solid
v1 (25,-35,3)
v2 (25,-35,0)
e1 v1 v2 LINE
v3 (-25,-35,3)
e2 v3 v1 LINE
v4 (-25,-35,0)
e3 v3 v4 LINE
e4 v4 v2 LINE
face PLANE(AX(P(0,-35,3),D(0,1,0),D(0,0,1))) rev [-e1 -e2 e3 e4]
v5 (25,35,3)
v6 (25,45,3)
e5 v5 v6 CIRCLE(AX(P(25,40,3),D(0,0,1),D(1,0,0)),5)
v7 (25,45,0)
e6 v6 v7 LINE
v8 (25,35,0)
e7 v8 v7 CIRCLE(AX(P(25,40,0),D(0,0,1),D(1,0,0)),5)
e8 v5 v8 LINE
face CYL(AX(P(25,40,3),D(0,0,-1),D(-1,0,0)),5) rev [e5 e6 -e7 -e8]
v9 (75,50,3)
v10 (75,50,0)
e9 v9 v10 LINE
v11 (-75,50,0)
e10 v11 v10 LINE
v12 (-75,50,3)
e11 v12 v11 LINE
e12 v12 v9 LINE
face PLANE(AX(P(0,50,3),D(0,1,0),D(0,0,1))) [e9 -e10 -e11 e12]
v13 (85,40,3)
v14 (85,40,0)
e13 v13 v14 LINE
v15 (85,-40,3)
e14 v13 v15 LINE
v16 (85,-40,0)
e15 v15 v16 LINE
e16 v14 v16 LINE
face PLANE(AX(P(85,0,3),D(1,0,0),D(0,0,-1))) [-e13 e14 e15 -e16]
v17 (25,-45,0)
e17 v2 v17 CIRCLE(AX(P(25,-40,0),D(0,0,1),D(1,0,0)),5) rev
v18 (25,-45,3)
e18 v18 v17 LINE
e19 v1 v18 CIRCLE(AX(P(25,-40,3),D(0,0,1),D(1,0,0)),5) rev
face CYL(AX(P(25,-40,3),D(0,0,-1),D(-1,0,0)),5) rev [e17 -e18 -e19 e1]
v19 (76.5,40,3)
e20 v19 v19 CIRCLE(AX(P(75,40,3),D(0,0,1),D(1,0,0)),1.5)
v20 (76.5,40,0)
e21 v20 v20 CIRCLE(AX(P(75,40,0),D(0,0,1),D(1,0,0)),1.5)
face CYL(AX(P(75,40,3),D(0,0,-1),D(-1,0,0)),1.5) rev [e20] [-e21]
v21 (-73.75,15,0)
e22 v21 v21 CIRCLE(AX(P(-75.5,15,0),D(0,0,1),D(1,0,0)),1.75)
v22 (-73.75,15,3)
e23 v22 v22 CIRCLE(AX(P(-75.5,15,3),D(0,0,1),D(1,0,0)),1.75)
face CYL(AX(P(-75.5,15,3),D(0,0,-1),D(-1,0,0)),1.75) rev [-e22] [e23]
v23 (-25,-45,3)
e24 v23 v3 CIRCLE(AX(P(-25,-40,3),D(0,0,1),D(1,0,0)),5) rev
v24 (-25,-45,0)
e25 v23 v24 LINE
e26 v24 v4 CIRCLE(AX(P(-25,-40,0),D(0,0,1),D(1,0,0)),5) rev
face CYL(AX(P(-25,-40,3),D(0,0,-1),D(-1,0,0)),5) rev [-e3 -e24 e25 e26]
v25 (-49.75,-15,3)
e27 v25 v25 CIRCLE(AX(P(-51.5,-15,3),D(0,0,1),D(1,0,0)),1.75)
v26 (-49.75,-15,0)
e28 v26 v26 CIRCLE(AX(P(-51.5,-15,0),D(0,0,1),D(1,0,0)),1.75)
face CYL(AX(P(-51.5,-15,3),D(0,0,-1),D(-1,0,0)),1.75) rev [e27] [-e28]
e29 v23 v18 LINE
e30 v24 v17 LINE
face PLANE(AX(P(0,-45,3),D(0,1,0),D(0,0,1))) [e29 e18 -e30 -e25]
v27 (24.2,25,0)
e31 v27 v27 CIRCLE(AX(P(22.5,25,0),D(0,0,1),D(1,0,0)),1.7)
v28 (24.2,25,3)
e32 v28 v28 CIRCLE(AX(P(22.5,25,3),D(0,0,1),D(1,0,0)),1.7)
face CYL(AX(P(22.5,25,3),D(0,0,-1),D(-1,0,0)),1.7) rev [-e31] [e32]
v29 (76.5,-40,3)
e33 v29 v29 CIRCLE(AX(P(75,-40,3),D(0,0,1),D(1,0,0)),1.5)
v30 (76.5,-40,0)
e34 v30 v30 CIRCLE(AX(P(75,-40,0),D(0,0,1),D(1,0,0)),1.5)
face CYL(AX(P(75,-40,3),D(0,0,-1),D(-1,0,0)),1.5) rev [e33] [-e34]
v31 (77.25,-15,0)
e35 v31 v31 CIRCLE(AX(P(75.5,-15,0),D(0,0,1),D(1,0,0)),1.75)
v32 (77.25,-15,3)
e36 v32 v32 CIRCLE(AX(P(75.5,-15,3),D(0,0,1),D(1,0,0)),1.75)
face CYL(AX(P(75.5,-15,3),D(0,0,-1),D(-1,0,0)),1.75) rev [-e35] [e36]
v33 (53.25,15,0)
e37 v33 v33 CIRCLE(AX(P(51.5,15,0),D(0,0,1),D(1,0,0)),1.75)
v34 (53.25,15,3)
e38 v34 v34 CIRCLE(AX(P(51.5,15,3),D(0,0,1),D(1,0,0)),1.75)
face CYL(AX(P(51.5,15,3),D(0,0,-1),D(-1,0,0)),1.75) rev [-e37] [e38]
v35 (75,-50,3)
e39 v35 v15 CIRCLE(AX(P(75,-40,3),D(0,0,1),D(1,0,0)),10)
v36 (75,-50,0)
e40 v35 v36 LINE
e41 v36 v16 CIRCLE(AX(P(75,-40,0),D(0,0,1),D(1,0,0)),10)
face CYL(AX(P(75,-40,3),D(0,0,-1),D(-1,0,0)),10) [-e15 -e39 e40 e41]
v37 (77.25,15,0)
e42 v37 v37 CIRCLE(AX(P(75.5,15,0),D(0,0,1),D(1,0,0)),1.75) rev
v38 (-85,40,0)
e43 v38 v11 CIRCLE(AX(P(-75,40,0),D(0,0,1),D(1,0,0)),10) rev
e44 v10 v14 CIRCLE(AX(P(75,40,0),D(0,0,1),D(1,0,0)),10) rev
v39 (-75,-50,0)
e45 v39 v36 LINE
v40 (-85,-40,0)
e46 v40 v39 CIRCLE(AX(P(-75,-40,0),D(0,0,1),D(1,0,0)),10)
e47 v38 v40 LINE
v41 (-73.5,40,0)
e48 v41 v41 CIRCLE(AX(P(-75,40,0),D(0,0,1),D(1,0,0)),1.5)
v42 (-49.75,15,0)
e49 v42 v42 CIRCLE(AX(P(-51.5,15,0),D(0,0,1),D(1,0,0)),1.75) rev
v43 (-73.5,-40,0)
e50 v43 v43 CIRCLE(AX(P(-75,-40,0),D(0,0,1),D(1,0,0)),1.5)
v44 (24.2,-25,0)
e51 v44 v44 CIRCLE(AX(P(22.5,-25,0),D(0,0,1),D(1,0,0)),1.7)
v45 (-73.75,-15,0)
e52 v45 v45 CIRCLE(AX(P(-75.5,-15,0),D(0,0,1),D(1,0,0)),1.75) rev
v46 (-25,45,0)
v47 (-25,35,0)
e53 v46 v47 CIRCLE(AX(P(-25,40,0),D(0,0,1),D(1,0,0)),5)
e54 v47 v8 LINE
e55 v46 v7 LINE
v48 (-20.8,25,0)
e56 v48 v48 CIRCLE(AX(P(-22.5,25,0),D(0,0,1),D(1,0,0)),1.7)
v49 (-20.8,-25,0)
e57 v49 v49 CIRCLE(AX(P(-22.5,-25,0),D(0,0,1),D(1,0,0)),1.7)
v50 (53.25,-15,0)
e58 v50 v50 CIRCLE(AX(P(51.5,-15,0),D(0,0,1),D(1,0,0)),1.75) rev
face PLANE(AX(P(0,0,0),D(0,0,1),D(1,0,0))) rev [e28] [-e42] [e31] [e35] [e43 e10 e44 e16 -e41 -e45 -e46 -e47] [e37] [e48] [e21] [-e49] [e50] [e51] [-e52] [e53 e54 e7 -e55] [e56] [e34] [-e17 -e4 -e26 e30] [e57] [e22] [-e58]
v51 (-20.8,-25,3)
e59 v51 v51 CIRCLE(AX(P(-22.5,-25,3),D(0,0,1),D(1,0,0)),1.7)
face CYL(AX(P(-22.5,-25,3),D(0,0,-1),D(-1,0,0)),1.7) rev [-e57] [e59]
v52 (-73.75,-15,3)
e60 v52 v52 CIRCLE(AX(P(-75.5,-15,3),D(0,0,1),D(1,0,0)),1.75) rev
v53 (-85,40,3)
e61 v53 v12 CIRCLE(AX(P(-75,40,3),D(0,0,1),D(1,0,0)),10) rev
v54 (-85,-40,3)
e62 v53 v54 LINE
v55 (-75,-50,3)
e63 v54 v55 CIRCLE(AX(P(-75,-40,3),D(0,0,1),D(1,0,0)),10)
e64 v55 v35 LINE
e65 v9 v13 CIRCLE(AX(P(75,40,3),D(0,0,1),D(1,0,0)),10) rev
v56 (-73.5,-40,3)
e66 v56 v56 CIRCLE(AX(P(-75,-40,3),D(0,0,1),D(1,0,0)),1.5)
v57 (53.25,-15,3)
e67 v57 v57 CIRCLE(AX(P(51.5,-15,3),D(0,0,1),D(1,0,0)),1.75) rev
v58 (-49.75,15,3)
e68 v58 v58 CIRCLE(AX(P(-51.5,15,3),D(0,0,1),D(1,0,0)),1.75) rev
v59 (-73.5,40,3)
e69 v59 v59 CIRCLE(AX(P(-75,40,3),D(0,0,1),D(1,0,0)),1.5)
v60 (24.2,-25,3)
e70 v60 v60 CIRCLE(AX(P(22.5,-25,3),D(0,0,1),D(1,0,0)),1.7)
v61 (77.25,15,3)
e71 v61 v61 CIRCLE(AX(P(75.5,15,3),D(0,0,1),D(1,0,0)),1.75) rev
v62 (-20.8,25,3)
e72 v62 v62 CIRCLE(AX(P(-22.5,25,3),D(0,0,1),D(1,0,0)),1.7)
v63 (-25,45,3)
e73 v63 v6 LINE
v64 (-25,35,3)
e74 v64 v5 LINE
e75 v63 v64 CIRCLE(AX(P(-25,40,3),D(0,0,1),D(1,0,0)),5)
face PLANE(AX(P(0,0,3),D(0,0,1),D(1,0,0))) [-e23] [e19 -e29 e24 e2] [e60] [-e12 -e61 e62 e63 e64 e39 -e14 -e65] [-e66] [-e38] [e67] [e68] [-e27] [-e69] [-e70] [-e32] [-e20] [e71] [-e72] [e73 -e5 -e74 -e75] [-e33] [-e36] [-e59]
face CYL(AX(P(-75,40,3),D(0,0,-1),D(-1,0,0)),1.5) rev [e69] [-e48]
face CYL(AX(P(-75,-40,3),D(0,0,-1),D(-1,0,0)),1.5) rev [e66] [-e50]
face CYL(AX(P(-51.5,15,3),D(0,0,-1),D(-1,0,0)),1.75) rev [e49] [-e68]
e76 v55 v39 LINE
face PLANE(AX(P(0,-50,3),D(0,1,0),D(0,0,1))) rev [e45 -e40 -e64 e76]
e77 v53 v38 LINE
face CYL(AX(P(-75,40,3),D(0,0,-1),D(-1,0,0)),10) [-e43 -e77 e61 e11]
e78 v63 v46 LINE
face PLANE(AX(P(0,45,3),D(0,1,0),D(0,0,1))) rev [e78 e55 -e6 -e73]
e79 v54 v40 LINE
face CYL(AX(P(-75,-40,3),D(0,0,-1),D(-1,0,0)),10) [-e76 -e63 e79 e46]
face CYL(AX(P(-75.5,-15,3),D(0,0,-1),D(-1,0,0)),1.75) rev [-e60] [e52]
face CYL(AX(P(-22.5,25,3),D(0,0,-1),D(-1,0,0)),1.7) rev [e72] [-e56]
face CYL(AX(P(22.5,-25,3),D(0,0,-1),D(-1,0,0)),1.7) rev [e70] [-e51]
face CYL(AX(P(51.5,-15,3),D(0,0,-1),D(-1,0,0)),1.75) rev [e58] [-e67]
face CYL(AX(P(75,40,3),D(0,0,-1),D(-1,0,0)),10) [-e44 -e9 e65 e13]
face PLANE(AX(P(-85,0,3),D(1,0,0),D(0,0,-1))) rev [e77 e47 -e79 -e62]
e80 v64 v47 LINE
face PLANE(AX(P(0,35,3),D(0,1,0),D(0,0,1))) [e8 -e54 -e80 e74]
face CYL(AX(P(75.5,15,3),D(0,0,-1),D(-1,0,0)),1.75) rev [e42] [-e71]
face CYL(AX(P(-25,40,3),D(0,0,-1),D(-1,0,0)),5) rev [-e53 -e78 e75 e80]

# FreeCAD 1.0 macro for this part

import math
import FreeCAD as App
import Part
import Sketcher
Q = App.Units.Quantity

doc = App.newDocument("Part")
body = doc.addObject("PartDesign::Body", "Body")

sketch1 = doc.addObject("Sketcher::SketchObject", "Sketch")
body.addObject(sketch1)
sketch1.AttachmentSupport = (doc.XY_Plane, [""])
sketch1.MapMode = "FlatFace"
sketch1.addGeometry([
    Part.LineSegment(App.Vector(75, 50, 0), App.Vector(-75, 50, 0)),
    Part.ArcOfCircle(Part.Circle(App.Vector(-75, 40, 0), App.Vector(0, 0, 1), 10), math.radians(90), math.radians(180)),
    Part.LineSegment(App.Vector(-85, 40, 0), App.Vector(-85, -40, 0)),
    Part.ArcOfCircle(Part.Circle(App.Vector(-75, -40, 0), App.Vector(0, 0, 1), 10), math.radians(180), math.radians(270)),
    Part.LineSegment(App.Vector(-75, -50, 0), App.Vector(75, -50, 0)),
    Part.ArcOfCircle(Part.Circle(App.Vector(75, -40, 0), App.Vector(0, 0, 1), 10), math.radians(-90), math.radians(0)),
    Part.LineSegment(App.Vector(85, -40, 0), App.Vector(85, 40, 0)),
    Part.ArcOfCircle(Part.Circle(App.Vector(75, 40, 0), App.Vector(0, 0, 1), 10), math.radians(0), math.radians(90)),
    Part.Circle(App.Vector(75, -40, 0), App.Vector(0, 0, 1), 1.5),
    Part.Circle(App.Vector(22.5, -25, 0), App.Vector(0, 0, 1), 1.7),
    Part.Circle(App.Vector(75.5, -15, 0), App.Vector(0, 0, 1), 1.8),
    Part.Circle(App.Vector(51.5, -15, 0), App.Vector(0, 0, 1), 1.8),
    Part.ArcOfCircle(Part.Circle(App.Vector(-25, -40, 0), App.Vector(0, 0, 1), 5), math.radians(90), math.radians(270)),
    Part.LineSegment(App.Vector(-25, -35, 0), App.Vector(25, -35, 0)),
    Part.ArcOfCircle(Part.Circle(App.Vector(25, -40, 0), App.Vector(0, 0, 1), 5), math.radians(-90), math.radians(90)),
    Part.LineSegment(App.Vector(25, -45, 0), App.Vector(-25, -45, 0)),
    Part.Circle(App.Vector(-22.5, -25, 0), App.Vector(0, 0, 1), 1.7),
    Part.Circle(App.Vector(-75, -40, 0), App.Vector(0, 0, 1), 1.5),
    Part.Circle(App.Vector(-51.5, -15, 0), App.Vector(0, 0, 1), 1.8),
    Part.Circle(App.Vector(-75.5, -15, 0), App.Vector(0, 0, 1), 1.8),
    Part.Circle(App.Vector(75.5, 15, 0), App.Vector(0, 0, 1), 1.8),
    Part.Circle(App.Vector(51.5, 15, 0), App.Vector(0, 0, 1), 1.8),
    Part.Circle(App.Vector(75, 40, 0), App.Vector(0, 0, 1), 1.5),
    Part.Circle(App.Vector(22.5, 25, 0), App.Vector(0, 0, 1), 1.7),
    Part.Circle(App.Vector(-51.5, 15, 0), App.Vector(0, 0, 1), 1.8),
    Part.Circle(App.Vector(-75.5, 15, 0), App.Vector(0, 0, 1), 1.8),
    Part.Circle(App.Vector(-22.5, 25, 0), App.Vector(0, 0, 1), 1.7),
    Part.LineSegment(App.Vector(-25, 45, 0), App.Vector(25, 45, 0)),
    Part.ArcOfCircle(Part.Circle(App.Vector(25, 40, 0), App.Vector(0, 0, 1), 5), math.radians(-90), math.radians(90)),
    Part.LineSegment(App.Vector(25, 35, 0), App.Vector(-25, 35, 0)),
    Part.ArcOfCircle(Part.Circle(App.Vector(-25, 40, 0), App.Vector(0, 0, 1), 5), math.radians(90), math.radians(270)),
    Part.Circle(App.Vector(-75, 40, 0), App.Vector(0, 0, 1), 1.5),
], False)
sketch1.addConstraint([
    Sketcher.Constraint("Tangent", 0, 2, 1, 1),
    Sketcher.Constraint("Tangent", 1, 2, 2, 1),
    Sketcher.Constraint("Tangent", 2, 2, 3, 1),
    Sketcher.Constraint("Tangent", 3, 2, 4, 1),
    Sketcher.Constraint("Tangent", 4, 2, 5, 1),
    Sketcher.Constraint("Tangent", 5, 2, 6, 1),
    Sketcher.Constraint("Tangent", 6, 2, 7, 1),
    Sketcher.Constraint("Tangent", 7, 2, 0, 1),
    Sketcher.Constraint("Tangent", 12, 1, 13, 1),
    Sketcher.Constraint("Tangent", 13, 2, 14, 2),
    Sketcher.Constraint("Tangent", 14, 1, 15, 1),
    Sketcher.Constraint("Tangent", 15, 2, 12, 2),
    Sketcher.Constraint("Tangent", 27, 2, 28, 2),
    Sketcher.Constraint("Tangent", 28, 1, 29, 1),
    Sketcher.Constraint("Tangent", 29, 2, 30, 2),
    Sketcher.Constraint("Tangent", 30, 1, 27, 1),
    Sketcher.Constraint("Horizontal", 0),
    Sketcher.Constraint("Vertical", 2),
    Sketcher.Constraint("Horizontal", 4),
    Sketcher.Constraint("Vertical", 6),
    Sketcher.Constraint("Horizontal", 13),
    Sketcher.Constraint("Horizontal", 15),
    Sketcher.Constraint("Horizontal", 27),
    Sketcher.Constraint("Horizontal", 29),
    Sketcher.Constraint("Coincident", 8, 3, 5, 3),
    Sketcher.Constraint("Coincident", 17, 3, 3, 3),
    Sketcher.Constraint("Coincident", 22, 3, 7, 3),
    Sketcher.Constraint("Coincident", 31, 3, 1, 3),
    Sketcher.Constraint("Equal", 1, 3),
    Sketcher.Constraint("Equal", 3, 5),
    Sketcher.Constraint("Equal", 5, 7),
    Sketcher.Constraint("Equal", 10, 11),
    Sketcher.Constraint("Equal", 9, 16),
    Sketcher.Constraint("Equal", 8, 17),
    Sketcher.Constraint("Equal", 11, 18),
    Sketcher.Constraint("Equal", 18, 19),
    Sketcher.Constraint("Equal", 19, 20),
    Sketcher.Constraint("Equal", 20, 21),
    Sketcher.Constraint("Equal", 17, 22),
    Sketcher.Constraint("Equal", 16, 23),
    Sketcher.Constraint("Equal", 21, 24),
    Sketcher.Constraint("Equal", 24, 25),
    Sketcher.Constraint("Equal", 23, 26),
    Sketcher.Constraint("Equal", 14, 28),
    Sketcher.Constraint("Equal", 22, 31),
    Sketcher.Constraint("Symmetric", 1, 3, 5, 3, -1, 1),
    Sketcher.Constraint("Symmetric", 19, 3, 20, 3, -1, 1),
    Sketcher.Constraint("Symmetric", 18, 3, 21, 3, -1, 1),
    Sketcher.Constraint("Symmetric", 16, 3, 23, 3, -1, 1),
    Sketcher.Constraint("Symmetric", 11, 3, 24, 3, -1, 1),
    Sketcher.Constraint("Symmetric", 10, 3, 25, 3, -1, 1),
    Sketcher.Constraint("Symmetric", 9, 3, 26, 3, -1, 1),
    Sketcher.Constraint("Symmetric", 12, 3, 28, 3, -1, 1),
    Sketcher.Constraint("Symmetric", 9, 3, 16, 3, -2),
    Sketcher.Constraint("Symmetric", 11, 3, 18, 3, -2),
    Sketcher.Constraint("Symmetric", 10, 3, 19, 3, -2),
    Sketcher.Constraint("Horizontal", 10, 3, 11, 3),
    Sketcher.Constraint("Horizontal", 8, 3, 12, 3),
    Sketcher.Constraint("Vertical", 14, 3, 28, 3),
    Sketcher.Constraint("Vertical", 12, 3, 30, 3),
    Sketcher.Constraint("Diameter", 8, Q("3 mm")),
    Sketcher.Constraint("Radius", 1, Q("10 mm")),
    Sketcher.Constraint("Radius", 12, Q("5 mm")),
    Sketcher.Constraint("Diameter", 9, Q("3.4 mm")),
    Sketcher.Constraint("Diameter", 10, Q("3.5 mm")),
    Sketcher.Constraint("DistanceX", 0, 2, 0, 1, Q("150 mm")),
    Sketcher.Constraint("DistanceX", 13, 1, 13, 2, Q("50 mm")),
    Sketcher.Constraint("DistanceY", 2, 2, 2, 1, Q("80 mm")),
    Sketcher.Constraint("DistanceY", 9, 3, -1, 1, Q("25 mm")),
    Sketcher.Constraint("DistanceY", 10, 3, -1, 1, Q("15 mm")),
    Sketcher.Constraint("DistanceX", 9, 3, 10, 3, Q("53 mm")),
    Sketcher.Constraint("DistanceX", 11, 3, 10, 3, Q("24 mm")),
    Sketcher.Constraint("DistanceX", 16, 3, 9, 3, Q("45 mm")),
])
pad1 = doc.addObject("PartDesign::Pad", "Pad")
body.addObject(pad1)
pad1.Profile = sketch1
pad1.Length = 3

doc.recompute()
